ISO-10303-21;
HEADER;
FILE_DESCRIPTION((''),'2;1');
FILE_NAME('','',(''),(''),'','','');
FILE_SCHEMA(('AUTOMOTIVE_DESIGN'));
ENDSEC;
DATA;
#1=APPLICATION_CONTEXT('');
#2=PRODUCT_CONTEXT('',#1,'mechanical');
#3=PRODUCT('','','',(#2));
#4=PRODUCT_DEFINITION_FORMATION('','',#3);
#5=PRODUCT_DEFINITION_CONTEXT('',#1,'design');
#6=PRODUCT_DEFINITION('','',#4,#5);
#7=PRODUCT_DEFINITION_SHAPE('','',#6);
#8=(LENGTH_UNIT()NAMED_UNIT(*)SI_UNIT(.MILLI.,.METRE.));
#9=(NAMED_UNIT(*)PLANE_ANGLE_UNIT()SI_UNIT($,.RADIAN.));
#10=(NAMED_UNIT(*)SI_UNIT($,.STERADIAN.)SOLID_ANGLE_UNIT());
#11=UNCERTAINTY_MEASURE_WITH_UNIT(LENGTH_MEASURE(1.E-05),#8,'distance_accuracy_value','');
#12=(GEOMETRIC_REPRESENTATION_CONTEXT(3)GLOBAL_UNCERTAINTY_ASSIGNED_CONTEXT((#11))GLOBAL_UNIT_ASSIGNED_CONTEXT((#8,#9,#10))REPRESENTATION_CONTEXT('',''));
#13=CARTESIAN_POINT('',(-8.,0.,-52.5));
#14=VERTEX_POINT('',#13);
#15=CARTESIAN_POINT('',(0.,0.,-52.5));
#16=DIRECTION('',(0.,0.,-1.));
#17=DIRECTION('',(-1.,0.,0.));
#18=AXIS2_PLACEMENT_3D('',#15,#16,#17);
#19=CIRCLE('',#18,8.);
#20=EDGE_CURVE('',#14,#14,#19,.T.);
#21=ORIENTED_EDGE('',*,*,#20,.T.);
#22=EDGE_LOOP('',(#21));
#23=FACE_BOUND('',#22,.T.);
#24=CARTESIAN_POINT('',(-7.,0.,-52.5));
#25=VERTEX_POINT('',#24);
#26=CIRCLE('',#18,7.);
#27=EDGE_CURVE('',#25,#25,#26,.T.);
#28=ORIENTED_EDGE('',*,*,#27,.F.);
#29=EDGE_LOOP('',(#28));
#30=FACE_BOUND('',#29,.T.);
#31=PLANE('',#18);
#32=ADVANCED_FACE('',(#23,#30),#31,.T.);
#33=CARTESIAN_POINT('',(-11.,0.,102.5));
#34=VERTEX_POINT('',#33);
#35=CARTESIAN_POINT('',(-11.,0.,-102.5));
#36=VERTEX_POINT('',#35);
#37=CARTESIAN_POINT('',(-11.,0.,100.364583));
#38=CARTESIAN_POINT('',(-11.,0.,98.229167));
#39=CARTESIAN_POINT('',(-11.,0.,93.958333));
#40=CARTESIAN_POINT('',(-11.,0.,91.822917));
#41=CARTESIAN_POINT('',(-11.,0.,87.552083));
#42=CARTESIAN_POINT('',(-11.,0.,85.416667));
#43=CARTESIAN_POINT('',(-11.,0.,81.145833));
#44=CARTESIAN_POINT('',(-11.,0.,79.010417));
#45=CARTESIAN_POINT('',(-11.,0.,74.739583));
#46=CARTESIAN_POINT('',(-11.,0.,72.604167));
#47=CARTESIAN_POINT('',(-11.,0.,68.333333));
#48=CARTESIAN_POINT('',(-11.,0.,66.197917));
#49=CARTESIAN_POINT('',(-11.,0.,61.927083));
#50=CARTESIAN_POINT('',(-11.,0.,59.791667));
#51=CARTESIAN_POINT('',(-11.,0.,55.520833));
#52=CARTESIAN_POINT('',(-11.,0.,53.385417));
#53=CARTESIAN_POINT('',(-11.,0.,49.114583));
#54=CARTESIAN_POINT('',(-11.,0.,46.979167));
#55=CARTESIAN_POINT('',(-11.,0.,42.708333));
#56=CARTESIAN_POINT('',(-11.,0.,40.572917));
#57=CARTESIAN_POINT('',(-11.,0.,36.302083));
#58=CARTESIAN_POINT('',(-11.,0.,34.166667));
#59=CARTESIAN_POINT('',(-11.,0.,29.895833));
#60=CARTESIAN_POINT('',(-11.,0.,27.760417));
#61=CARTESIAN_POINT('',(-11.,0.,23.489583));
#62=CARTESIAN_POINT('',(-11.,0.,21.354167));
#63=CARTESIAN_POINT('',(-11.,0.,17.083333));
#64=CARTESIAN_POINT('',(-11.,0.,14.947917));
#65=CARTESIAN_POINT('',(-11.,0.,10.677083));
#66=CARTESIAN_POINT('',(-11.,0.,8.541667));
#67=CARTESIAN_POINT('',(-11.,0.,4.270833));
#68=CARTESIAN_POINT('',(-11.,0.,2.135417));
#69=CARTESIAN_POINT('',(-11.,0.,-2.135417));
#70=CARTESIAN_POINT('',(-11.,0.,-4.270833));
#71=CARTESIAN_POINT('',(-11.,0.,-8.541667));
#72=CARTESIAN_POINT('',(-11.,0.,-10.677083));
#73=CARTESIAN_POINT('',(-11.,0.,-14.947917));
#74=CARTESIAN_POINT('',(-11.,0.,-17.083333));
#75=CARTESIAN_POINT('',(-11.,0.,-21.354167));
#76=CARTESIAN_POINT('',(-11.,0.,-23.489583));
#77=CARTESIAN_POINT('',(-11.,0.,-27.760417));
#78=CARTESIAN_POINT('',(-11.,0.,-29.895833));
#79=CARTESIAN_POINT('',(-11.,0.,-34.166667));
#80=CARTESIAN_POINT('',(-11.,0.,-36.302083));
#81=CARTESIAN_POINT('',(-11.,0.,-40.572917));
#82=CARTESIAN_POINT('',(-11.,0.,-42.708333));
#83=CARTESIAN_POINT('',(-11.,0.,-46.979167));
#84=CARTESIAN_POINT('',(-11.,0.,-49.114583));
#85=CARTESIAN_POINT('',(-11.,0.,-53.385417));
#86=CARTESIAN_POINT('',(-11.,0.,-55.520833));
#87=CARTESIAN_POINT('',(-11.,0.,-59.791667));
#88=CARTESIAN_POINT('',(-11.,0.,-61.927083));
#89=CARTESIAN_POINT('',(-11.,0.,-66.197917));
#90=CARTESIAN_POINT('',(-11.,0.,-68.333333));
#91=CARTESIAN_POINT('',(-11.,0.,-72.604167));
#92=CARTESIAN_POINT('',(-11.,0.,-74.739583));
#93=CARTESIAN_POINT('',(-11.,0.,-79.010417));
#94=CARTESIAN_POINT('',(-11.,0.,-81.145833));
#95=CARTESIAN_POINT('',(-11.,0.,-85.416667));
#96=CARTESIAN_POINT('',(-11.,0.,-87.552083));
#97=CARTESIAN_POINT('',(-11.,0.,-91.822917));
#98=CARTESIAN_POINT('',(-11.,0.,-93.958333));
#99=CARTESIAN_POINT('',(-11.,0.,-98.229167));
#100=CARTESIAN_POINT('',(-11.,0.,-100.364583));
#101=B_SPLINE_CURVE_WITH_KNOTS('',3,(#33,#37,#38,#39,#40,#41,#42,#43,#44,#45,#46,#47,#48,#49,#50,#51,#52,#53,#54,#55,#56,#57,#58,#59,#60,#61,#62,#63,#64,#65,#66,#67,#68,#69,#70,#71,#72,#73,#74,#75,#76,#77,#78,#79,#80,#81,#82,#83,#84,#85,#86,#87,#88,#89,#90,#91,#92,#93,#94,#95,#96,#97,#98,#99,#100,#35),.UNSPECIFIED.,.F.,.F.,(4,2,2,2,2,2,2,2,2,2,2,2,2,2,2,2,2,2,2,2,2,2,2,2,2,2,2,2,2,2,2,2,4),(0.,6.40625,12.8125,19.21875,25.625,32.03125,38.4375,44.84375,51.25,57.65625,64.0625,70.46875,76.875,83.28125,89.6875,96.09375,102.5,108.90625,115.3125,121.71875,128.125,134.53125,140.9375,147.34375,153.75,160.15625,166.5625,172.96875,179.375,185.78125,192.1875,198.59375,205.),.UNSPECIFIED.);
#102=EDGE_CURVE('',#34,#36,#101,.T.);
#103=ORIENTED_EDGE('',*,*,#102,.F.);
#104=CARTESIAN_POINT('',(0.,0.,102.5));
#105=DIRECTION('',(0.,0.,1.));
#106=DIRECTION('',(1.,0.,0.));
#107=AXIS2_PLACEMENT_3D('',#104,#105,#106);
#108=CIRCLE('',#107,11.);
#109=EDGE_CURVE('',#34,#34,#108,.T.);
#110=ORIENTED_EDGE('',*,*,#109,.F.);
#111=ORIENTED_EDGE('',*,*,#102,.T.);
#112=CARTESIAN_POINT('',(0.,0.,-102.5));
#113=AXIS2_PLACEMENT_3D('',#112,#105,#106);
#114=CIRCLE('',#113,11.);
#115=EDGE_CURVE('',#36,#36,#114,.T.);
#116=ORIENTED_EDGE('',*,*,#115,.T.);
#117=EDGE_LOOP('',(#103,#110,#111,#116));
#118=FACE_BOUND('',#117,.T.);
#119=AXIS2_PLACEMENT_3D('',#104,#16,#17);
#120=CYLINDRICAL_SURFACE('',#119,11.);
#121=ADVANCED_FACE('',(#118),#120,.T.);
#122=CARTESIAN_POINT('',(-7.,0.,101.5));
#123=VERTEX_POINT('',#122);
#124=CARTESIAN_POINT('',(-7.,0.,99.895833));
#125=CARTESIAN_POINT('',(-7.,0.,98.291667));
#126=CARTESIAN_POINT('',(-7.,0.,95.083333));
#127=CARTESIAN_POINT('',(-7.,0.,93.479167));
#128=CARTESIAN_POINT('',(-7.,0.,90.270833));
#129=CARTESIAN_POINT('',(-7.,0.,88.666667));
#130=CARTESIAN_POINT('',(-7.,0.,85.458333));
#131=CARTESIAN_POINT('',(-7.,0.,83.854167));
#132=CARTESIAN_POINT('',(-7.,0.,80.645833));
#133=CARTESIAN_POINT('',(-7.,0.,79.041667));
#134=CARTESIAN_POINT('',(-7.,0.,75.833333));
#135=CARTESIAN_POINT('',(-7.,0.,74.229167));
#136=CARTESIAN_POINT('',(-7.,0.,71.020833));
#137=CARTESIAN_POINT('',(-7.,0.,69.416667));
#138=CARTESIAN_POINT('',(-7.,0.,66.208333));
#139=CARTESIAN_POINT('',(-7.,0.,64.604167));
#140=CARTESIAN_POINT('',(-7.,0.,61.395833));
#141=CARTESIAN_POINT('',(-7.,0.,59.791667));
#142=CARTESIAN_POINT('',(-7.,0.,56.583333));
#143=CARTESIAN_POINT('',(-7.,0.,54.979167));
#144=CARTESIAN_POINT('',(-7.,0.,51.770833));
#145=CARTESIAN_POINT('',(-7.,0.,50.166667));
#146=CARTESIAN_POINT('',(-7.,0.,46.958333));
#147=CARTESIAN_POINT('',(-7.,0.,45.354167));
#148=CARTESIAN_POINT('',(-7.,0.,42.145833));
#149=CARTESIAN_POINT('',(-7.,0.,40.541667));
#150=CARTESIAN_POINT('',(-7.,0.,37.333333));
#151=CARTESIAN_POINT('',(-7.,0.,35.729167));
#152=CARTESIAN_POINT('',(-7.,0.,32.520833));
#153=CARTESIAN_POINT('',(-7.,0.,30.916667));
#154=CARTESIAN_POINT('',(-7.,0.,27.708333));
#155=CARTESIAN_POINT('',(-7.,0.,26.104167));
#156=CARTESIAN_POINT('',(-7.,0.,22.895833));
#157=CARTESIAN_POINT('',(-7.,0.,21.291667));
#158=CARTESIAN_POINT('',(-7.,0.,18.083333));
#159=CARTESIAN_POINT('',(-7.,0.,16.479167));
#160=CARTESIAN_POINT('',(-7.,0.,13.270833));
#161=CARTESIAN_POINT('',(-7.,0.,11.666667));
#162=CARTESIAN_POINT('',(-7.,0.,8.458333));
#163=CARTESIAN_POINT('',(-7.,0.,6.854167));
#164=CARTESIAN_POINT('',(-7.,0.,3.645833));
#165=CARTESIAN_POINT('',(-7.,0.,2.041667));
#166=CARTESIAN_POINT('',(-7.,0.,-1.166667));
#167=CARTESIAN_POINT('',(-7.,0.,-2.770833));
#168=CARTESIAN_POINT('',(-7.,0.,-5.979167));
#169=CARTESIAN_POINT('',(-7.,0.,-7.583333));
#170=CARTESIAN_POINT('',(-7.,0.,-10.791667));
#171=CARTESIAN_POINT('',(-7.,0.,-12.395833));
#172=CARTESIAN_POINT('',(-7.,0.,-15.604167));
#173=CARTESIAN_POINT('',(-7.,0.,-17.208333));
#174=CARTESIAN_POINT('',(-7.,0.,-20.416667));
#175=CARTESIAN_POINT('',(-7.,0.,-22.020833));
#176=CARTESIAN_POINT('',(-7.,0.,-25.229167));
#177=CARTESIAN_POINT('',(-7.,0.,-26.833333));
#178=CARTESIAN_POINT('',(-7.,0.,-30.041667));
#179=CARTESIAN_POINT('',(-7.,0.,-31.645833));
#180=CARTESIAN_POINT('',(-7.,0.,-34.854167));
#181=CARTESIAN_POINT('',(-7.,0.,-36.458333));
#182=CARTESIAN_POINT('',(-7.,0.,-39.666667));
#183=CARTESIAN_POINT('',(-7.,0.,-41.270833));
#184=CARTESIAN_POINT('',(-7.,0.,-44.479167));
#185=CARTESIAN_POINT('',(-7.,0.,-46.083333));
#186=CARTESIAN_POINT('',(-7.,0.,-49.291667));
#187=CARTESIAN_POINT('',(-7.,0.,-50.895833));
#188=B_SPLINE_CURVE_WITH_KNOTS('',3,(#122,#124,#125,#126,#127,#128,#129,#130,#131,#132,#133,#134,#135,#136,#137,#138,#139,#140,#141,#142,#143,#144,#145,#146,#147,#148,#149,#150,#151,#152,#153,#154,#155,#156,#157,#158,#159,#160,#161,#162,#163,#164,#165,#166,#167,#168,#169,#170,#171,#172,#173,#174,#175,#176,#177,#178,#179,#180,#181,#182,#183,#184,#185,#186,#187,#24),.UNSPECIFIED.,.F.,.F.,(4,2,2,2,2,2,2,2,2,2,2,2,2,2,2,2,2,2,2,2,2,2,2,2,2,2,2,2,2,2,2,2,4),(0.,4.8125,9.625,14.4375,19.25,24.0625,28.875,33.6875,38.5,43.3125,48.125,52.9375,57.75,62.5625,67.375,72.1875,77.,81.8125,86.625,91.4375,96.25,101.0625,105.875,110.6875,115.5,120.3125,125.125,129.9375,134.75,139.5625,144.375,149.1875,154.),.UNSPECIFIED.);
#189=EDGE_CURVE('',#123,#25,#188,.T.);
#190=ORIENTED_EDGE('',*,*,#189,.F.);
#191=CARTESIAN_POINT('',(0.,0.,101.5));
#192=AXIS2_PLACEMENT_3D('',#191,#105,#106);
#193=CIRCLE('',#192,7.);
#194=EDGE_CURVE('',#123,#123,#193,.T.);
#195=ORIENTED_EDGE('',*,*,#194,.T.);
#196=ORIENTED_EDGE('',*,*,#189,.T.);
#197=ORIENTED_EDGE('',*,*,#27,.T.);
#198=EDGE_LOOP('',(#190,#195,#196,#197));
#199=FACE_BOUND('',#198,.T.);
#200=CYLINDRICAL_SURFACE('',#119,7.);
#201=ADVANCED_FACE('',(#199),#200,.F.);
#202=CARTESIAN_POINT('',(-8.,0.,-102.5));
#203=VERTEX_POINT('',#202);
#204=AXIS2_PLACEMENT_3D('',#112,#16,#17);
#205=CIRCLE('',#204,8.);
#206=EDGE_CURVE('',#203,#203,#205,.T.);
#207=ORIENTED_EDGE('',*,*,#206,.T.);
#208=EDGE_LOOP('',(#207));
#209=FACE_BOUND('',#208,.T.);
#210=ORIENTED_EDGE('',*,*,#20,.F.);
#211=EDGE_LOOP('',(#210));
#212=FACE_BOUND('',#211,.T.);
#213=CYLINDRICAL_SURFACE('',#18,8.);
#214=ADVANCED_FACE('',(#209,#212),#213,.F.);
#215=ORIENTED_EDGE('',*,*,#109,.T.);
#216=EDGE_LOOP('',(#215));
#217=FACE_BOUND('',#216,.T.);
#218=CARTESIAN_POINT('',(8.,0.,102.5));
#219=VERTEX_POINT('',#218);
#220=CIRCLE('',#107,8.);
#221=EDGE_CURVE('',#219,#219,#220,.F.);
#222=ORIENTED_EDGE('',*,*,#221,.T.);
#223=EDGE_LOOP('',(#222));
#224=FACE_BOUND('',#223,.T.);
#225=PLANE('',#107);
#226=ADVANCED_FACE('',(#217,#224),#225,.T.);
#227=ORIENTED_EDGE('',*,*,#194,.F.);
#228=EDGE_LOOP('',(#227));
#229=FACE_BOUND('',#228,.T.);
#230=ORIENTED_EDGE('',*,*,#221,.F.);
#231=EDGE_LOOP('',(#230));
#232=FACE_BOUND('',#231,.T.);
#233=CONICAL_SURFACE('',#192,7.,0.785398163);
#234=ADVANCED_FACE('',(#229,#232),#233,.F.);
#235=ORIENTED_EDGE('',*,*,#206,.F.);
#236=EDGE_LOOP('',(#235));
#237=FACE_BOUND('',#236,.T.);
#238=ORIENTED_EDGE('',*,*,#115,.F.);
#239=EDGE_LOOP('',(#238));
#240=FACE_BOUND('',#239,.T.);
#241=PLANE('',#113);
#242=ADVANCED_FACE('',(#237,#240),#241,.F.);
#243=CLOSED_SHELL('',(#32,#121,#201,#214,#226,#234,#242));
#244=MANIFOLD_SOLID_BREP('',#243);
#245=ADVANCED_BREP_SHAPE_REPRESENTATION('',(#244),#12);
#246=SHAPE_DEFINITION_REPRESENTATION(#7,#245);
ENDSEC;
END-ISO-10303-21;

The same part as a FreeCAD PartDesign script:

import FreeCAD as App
import Part
import Sketcher

V = App.Vector


def edges_at(feature, points):
    """Names of the edges that pass closest to the given points."""
    edges = feature.Shape.Edges
    near = lambda p: min(range(len(edges)), key=lambda i: edges[i].distToShape(Part.Vertex(*p))[0])
    return sorted({f"Edge{near(p) + 1}" for p in points})

doc = App.newDocument("Part")
body = doc.addObject("PartDesign::Body", "Body")

sketch1 = body.newObject("Sketcher::SketchObject", "Sketch")
sketch1.AttachmentSupport = (doc.getObject("XY_Plane"), [""])
sketch1.MapMode = "FlatFace"
sketch1.addGeometry([
    Part.Circle(V(0, 0, 0), V(0, 0, 1), 11),
    Part.Circle(V(0, 0, 0), V(0, 0, 1), 7),
], False)
sketch1.addConstraint([
    Sketcher.Constraint("Coincident", 0, 3, -1, 1),
    Sketcher.Constraint("Coincident", 1, 3, -1, 1),
    Sketcher.Constraint("Diameter", 0, 22.0),
    Sketcher.Constraint("Diameter", 1, 14.0),
])
pad1 = body.newObject("PartDesign::Pad", "Pad")
pad1.Profile = sketch1
pad1.Length = 205
pad1.Midplane = True

sketch2 = body.newObject("Sketcher::SketchObject", "Sketch001")
sketch2.AttachmentSupport = (doc.getObject("XY_Plane"), [""])
sketch2.MapMode = "FlatFace"
sketch2.AttachmentOffset = App.Placement(V(0, 0, -102.5), App.Rotation())
sketch2.addGeometry(Part.Circle(V(0, 0, 0), V(0, 0, 1), 8), False)
sketch2.addConstraint([
    Sketcher.Constraint("Coincident", 0, 3, -1, 1),
    Sketcher.Constraint("Diameter", 0, 16.0),
])
pocket1 = body.newObject("PartDesign::Pocket", "Pocket")
pocket1.Profile = sketch2
pocket1.Length = 50
pocket1.Reversed = True
doc.recompute()

chamfer = body.newObject("PartDesign::Chamfer", "Chamfer")
chamfer.Base = (pocket1, edges_at(pocket1, [(7, 0, 102.5)]))
chamfer.Size = 1

doc.recompute()
